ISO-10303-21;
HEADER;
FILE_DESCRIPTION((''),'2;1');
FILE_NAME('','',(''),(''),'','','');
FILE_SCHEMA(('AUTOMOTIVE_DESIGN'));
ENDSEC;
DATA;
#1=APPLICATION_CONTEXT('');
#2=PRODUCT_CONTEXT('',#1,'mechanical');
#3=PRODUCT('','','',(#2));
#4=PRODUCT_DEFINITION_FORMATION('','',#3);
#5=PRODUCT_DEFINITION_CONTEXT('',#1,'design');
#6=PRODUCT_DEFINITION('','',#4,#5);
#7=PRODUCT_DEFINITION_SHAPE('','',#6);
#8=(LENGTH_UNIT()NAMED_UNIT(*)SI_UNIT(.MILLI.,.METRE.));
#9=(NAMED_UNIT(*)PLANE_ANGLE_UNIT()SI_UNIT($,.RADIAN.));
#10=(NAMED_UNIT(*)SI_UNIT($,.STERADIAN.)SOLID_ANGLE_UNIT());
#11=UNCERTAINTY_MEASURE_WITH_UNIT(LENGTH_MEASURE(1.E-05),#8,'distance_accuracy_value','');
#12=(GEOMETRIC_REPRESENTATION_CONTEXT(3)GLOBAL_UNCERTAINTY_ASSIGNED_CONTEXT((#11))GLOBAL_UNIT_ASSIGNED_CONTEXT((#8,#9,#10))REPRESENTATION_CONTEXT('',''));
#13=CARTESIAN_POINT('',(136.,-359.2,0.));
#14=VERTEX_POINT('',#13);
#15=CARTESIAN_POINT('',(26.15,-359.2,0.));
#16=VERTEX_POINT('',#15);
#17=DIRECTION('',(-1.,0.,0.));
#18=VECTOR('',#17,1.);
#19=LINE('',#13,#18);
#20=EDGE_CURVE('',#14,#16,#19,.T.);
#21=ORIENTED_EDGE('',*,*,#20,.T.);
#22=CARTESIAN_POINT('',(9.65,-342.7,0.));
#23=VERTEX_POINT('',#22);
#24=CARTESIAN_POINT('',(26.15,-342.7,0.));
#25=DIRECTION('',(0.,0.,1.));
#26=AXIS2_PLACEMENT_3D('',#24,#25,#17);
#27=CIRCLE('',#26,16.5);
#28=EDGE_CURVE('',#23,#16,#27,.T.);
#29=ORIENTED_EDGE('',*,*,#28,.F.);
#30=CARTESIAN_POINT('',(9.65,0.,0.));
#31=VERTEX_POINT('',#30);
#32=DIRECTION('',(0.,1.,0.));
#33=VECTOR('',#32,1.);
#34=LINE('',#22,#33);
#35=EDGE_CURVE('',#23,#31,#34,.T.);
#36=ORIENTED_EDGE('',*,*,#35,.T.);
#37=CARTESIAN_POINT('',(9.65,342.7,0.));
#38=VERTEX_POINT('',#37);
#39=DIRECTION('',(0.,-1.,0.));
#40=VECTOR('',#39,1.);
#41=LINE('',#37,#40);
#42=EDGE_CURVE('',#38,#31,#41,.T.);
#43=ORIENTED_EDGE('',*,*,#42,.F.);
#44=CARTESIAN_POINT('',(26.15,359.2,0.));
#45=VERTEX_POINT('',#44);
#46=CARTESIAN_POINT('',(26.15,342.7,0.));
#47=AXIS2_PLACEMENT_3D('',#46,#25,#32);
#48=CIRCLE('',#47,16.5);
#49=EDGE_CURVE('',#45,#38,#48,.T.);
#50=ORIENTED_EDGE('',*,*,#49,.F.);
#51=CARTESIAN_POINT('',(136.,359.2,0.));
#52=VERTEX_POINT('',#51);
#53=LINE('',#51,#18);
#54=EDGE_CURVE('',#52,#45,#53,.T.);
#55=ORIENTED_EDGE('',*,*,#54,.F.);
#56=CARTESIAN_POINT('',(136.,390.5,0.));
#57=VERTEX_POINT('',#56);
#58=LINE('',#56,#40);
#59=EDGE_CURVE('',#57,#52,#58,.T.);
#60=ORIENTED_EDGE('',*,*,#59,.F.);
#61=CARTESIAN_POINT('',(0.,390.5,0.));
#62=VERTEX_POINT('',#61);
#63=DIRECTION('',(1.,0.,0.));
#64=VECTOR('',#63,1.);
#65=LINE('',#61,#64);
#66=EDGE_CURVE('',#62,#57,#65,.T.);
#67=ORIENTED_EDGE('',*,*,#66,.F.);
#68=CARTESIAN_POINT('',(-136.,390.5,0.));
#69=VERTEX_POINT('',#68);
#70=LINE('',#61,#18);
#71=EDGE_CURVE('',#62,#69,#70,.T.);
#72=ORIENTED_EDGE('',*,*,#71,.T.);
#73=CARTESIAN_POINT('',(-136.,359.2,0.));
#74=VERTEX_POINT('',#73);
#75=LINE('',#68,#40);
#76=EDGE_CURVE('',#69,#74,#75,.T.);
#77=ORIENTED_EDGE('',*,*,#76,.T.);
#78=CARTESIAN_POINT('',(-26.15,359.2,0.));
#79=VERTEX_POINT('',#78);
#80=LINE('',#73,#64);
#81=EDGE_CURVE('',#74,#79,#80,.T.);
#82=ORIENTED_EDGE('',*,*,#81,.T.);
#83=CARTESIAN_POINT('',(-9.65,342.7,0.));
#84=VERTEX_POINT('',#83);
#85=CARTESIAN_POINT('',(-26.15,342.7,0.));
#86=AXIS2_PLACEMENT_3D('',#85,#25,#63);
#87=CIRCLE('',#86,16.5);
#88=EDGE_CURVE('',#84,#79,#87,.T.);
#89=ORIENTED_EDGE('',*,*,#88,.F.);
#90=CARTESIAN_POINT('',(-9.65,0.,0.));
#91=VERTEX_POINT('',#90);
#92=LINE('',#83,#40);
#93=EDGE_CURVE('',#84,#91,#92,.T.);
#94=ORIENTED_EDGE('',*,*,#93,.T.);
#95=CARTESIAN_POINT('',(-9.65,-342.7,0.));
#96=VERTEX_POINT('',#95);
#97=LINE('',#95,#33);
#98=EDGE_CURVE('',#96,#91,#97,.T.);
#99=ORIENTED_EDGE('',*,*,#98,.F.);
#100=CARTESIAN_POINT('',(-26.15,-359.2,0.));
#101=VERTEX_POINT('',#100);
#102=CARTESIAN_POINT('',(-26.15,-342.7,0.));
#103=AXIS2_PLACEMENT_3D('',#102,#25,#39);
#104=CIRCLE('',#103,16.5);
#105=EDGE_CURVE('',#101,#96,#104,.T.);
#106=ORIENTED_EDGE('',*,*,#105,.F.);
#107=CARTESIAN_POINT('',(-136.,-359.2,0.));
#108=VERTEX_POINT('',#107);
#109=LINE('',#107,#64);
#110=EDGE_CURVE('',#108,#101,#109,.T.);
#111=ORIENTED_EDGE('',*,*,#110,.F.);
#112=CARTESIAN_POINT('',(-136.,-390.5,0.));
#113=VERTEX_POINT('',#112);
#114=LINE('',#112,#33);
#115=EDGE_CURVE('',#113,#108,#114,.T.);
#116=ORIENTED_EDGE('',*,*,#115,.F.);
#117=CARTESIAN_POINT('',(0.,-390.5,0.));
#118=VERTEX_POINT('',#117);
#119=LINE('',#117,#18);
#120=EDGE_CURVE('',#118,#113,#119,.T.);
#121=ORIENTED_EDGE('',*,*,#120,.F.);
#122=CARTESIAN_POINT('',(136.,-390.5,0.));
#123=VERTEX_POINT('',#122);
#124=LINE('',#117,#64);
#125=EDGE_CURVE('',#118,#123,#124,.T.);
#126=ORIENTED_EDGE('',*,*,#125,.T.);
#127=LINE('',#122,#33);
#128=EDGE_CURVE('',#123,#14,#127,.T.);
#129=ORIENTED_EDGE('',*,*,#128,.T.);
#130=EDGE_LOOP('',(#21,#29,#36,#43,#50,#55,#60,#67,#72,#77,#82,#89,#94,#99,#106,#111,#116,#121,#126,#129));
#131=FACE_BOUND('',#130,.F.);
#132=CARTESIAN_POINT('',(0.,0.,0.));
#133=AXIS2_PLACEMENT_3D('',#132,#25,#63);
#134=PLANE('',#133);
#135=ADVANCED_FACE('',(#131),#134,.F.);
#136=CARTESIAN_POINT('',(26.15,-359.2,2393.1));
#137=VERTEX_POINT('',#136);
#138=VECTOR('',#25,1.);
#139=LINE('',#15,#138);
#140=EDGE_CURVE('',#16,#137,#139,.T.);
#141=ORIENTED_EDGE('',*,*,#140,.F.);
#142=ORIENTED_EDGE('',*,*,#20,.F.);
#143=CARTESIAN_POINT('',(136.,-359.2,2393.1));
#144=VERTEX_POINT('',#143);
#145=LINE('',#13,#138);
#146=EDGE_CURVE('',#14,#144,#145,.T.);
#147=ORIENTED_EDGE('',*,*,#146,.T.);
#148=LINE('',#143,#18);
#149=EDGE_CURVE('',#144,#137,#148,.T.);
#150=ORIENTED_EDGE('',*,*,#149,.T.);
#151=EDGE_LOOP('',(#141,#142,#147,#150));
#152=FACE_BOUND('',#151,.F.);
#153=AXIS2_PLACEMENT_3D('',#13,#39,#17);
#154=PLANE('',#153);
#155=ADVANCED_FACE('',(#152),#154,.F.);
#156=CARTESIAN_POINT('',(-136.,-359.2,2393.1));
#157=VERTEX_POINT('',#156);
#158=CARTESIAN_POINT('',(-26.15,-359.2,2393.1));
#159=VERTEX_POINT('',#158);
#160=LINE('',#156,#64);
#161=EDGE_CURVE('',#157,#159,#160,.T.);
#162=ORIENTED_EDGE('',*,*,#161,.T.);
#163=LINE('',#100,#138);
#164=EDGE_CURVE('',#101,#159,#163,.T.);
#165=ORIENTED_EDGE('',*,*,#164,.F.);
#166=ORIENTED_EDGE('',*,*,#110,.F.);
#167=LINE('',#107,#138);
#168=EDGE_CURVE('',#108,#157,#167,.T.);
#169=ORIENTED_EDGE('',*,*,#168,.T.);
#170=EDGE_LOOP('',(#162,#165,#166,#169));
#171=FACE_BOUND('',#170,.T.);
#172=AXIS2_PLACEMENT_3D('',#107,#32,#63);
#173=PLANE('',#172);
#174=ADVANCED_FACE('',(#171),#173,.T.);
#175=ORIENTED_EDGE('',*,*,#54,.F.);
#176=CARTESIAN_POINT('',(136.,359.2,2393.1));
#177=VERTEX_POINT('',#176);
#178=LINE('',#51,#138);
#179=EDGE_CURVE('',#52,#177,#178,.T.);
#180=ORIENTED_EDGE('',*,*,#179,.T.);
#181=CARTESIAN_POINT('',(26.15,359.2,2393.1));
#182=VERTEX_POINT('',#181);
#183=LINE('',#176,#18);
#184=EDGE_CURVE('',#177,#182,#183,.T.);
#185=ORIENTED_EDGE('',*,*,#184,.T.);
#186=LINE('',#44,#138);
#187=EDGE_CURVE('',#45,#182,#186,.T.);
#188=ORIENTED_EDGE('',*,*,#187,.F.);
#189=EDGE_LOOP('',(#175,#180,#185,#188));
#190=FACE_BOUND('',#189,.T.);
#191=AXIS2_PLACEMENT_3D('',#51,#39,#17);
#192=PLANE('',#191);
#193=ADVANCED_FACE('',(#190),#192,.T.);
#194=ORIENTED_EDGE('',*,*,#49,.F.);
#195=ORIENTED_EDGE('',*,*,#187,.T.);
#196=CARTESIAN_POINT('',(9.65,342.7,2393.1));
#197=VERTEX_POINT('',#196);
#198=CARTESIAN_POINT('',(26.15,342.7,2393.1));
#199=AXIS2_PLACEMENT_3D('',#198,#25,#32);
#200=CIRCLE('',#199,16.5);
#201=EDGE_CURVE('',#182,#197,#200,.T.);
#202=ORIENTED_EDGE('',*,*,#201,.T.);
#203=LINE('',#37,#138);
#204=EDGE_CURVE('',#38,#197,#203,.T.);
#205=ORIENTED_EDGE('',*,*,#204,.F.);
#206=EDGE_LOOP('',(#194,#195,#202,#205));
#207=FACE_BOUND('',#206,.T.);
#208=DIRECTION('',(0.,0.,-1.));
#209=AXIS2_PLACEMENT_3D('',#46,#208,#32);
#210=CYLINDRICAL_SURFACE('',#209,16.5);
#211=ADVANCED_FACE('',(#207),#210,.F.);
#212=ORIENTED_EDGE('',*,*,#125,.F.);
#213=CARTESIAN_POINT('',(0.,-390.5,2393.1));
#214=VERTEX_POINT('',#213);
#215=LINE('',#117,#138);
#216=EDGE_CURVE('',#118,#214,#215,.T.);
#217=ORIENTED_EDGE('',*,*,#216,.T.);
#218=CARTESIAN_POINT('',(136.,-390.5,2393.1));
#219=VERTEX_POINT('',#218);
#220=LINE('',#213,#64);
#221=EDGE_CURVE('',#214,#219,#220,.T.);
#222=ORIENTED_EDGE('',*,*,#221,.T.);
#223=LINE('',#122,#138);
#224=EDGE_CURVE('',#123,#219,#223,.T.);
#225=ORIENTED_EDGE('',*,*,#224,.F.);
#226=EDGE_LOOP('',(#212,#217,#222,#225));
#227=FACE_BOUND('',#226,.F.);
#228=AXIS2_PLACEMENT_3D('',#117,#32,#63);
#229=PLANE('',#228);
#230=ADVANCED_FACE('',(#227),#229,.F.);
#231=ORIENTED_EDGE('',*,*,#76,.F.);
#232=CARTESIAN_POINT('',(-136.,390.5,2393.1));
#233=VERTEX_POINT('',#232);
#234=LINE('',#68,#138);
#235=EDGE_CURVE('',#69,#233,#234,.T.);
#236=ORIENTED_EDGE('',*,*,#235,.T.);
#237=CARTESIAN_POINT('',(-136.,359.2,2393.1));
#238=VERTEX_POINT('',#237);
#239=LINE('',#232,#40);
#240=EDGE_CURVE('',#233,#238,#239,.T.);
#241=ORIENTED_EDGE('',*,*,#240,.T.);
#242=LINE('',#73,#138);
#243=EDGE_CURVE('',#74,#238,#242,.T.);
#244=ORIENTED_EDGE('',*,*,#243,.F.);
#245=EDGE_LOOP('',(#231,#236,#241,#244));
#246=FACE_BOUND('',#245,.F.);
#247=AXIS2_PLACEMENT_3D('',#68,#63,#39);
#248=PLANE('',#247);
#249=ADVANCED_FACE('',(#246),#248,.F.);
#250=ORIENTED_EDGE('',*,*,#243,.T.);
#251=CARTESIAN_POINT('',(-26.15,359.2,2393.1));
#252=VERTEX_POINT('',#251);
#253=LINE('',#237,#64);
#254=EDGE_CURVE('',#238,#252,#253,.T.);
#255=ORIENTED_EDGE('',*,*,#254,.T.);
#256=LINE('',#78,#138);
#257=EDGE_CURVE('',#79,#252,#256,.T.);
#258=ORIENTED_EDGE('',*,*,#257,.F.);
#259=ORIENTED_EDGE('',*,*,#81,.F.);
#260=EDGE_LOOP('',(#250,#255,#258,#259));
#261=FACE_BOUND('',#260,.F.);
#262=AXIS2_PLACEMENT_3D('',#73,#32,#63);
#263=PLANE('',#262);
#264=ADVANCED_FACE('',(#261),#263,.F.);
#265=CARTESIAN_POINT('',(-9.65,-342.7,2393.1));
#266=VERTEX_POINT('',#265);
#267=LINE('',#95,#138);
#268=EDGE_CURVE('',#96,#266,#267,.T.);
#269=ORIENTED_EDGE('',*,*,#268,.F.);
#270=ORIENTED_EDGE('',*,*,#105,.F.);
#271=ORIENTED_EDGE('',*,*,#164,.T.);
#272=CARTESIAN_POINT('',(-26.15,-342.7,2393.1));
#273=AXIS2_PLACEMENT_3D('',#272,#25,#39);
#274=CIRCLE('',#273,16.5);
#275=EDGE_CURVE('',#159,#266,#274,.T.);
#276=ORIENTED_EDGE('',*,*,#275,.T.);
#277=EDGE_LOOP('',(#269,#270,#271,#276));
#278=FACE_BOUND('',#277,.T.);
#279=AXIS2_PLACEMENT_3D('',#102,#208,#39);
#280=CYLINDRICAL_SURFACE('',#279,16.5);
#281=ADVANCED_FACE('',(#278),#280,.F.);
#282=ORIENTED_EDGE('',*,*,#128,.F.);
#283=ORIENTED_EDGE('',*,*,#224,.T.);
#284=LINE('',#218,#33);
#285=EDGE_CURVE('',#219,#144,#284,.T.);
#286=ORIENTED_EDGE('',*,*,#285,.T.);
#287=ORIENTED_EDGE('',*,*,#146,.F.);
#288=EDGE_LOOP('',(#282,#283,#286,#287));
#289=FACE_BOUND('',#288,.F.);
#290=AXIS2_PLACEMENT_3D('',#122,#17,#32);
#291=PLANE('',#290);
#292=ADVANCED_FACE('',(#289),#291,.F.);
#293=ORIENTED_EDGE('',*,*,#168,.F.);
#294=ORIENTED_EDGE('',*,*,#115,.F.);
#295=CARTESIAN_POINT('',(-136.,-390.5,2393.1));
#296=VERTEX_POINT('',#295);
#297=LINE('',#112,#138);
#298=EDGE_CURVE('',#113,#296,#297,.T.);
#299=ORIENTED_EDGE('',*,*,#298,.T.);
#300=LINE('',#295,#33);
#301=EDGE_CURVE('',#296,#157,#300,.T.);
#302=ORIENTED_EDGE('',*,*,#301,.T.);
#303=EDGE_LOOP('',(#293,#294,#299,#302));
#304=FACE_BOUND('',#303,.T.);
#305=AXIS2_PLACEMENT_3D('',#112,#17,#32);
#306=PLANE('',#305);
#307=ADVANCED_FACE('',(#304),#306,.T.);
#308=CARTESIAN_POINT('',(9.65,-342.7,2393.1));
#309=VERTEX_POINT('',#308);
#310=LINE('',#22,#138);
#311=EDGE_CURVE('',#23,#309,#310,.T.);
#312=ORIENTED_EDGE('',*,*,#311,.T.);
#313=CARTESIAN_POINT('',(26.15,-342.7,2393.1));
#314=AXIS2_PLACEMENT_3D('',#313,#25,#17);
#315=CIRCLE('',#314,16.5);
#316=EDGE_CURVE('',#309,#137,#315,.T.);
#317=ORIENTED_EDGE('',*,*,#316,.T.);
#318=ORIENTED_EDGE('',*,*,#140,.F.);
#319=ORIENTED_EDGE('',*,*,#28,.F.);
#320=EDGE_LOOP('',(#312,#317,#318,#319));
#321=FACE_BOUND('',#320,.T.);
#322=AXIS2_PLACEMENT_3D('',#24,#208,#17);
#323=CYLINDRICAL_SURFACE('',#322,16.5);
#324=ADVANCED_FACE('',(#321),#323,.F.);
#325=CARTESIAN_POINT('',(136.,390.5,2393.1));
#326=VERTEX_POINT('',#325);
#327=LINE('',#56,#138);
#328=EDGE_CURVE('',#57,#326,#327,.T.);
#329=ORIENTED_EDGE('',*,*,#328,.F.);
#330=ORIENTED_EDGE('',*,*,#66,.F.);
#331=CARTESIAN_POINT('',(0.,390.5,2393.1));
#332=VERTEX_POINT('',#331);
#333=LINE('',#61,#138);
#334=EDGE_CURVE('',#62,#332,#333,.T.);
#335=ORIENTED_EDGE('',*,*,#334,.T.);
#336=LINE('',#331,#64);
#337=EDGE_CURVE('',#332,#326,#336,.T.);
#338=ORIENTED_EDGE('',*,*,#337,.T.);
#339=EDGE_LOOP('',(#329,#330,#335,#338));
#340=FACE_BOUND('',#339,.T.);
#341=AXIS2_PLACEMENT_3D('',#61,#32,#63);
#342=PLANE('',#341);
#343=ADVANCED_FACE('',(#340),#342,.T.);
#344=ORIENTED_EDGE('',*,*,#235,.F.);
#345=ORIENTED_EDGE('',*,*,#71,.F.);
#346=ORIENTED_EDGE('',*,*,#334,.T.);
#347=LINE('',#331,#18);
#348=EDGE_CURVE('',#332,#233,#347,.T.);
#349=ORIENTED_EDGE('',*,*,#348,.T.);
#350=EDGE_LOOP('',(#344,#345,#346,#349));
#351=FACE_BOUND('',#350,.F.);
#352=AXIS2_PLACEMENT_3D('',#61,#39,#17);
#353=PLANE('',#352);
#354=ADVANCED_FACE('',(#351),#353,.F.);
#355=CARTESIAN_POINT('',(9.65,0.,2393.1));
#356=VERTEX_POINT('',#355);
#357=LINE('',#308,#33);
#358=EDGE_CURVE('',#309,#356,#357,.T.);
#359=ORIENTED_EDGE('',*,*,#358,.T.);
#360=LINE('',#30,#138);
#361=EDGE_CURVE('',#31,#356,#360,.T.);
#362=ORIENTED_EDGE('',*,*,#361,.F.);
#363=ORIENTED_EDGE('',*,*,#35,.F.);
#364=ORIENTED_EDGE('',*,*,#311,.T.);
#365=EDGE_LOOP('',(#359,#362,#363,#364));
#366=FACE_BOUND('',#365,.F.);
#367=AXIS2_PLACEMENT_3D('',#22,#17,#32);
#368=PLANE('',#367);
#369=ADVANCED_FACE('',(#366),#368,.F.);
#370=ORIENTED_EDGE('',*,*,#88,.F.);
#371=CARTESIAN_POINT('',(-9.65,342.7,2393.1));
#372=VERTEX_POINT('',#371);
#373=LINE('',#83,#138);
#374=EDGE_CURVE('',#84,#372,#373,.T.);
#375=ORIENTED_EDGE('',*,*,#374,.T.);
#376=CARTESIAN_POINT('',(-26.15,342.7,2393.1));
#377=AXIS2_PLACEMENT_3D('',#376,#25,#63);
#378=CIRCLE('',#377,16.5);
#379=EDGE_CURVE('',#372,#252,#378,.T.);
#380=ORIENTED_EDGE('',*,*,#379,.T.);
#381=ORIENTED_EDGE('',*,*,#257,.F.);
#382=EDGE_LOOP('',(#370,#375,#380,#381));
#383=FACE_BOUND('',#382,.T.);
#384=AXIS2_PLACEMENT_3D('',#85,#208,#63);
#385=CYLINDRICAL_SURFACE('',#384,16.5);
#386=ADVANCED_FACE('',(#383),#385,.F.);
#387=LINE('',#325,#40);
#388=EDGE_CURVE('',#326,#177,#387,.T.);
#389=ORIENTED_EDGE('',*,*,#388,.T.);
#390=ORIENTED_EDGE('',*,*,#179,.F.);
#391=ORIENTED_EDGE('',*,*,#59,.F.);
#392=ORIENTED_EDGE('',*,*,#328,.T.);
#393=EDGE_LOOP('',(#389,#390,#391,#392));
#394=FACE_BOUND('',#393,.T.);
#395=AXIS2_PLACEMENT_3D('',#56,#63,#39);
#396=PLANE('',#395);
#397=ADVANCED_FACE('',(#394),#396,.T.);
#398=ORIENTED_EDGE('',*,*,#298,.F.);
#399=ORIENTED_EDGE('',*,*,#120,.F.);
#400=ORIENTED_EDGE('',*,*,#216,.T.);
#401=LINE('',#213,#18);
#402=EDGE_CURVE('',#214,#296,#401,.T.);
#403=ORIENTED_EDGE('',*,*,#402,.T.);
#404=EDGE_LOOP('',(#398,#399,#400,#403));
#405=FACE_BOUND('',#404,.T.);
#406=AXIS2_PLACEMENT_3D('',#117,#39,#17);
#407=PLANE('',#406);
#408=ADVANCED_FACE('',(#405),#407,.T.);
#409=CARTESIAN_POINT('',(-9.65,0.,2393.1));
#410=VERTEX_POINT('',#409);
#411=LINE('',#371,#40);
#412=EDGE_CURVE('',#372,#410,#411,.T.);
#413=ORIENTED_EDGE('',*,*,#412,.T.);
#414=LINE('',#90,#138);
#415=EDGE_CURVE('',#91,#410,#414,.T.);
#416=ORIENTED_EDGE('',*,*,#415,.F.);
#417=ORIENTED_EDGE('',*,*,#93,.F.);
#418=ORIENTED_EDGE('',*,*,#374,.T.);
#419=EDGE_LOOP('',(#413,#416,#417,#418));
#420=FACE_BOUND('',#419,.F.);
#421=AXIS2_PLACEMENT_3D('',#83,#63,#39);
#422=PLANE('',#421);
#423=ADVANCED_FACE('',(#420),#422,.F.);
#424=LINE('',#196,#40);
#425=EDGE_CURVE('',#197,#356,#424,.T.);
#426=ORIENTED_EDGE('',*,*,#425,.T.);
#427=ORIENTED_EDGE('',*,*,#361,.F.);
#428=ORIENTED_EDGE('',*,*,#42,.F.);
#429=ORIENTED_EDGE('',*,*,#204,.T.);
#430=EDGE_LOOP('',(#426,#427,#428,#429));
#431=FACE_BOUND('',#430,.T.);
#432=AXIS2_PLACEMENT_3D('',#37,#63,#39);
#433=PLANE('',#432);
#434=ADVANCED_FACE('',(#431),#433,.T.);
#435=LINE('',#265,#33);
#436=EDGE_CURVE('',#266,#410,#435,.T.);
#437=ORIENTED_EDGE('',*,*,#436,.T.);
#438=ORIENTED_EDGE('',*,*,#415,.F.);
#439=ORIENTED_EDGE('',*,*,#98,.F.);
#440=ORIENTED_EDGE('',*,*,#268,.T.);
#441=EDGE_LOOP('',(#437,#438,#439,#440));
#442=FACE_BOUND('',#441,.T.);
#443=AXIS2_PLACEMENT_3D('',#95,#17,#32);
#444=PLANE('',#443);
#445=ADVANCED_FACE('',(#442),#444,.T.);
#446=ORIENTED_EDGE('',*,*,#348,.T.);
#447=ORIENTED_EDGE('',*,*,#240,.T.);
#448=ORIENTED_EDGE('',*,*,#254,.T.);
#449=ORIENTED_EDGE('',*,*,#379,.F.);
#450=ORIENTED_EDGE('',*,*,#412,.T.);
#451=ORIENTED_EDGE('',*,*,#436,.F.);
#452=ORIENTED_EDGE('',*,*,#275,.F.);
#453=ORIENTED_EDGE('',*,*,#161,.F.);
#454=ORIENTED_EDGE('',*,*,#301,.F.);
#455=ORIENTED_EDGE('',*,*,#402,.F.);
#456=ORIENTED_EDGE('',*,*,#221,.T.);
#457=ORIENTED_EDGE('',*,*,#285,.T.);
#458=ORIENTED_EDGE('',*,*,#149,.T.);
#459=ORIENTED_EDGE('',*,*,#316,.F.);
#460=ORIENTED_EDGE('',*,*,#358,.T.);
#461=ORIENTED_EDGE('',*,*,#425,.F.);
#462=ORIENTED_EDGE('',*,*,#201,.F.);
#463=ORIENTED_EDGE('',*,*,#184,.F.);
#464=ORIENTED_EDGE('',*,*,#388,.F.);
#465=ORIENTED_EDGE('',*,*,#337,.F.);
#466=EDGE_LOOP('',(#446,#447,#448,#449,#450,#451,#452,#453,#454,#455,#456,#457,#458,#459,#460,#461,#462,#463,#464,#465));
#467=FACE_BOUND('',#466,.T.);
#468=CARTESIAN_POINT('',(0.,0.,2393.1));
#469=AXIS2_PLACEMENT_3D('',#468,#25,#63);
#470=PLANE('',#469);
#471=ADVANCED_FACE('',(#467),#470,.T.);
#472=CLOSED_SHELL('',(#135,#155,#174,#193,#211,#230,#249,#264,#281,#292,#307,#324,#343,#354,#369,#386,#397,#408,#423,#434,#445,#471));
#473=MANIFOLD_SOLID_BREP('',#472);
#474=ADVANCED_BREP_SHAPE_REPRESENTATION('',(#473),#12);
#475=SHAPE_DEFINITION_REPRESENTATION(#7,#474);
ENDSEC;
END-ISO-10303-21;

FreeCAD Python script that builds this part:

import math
import FreeCAD as App
import Part
import Sketcher
from FreeCAD import Vector
Q = App.Units.Quantity

doc = App.newDocument("Part")
body = doc.addObject("PartDesign::Body", "Body")

# Sketch on XY plane
sketch1 = body.newObject("Sketcher::SketchObject", "Sketch")
sketch1.AttachmentSupport = (doc.getObject("XY_Plane"), [""])
sketch1.MapMode = "FlatFace"
sketch1.addGeometry([
    Part.LineSegment(Vector(-136, -359.2, 0), Vector(-136, -390.5, 0)),  # 0
    Part.LineSegment(Vector(-136, -390.5, 0), Vector(136, -390.5, 0)),  # 1
    Part.LineSegment(Vector(136, -390.5, 0), Vector(136, -359.2, 0)),  # 2
    Part.LineSegment(Vector(136, -359.2, 0), Vector(26.15, -359.2, 0)),  # 3
    Part.ArcOfCircle(Part.Circle(Vector(26.15, -342.7, 0), Vector(0, 0, 1), 16.5), math.radians(180), math.radians(270)),  # 4
    Part.LineSegment(Vector(9.65, -342.7, 0), Vector(9.65, 342.7, 0)),  # 5
    Part.ArcOfCircle(Part.Circle(Vector(26.15, 342.7, 0), Vector(0, 0, 1), 16.5), math.radians(90), math.radians(180)),  # 6
    Part.LineSegment(Vector(26.15, 359.2, 0), Vector(136, 359.2, 0)),  # 7
    Part.LineSegment(Vector(136, 359.2, 0), Vector(136, 390.5, 0)),  # 8
    Part.LineSegment(Vector(136, 390.5, 0), Vector(-136, 390.5, 0)),  # 9
    Part.LineSegment(Vector(-136, 390.5, 0), Vector(-136, 359.2, 0)),  # 10
    Part.LineSegment(Vector(-136, 359.2, 0), Vector(-26.15, 359.2, 0)),  # 11
    Part.ArcOfCircle(Part.Circle(Vector(-26.15, 342.7, 0), Vector(0, 0, 1), 16.5), math.radians(0), math.radians(90)),  # 12
    Part.LineSegment(Vector(-9.65, 342.7, 0), Vector(-9.65, -342.7, 0)),  # 13
    Part.ArcOfCircle(Part.Circle(Vector(-26.15, -342.7, 0), Vector(0, 0, 1), 16.5), math.radians(-90), math.radians(0)),  # 14
    Part.LineSegment(Vector(-26.15, -359.2, 0), Vector(-136, -359.2, 0)),  # 15
], False)
sketch1.addConstraint([
    Sketcher.Constraint("Coincident", 0, 2, 1, 1),
    Sketcher.Constraint("Coincident", 1, 2, 2, 1),
    Sketcher.Constraint("Coincident", 2, 2, 3, 1),
    Sketcher.Constraint("Tangent", 3, 2, 4, 2),
    Sketcher.Constraint("Tangent", 4, 1, 5, 1),
    Sketcher.Constraint("Tangent", 5, 2, 6, 2),
    Sketcher.Constraint("Tangent", 6, 1, 7, 1),
    Sketcher.Constraint("Coincident", 7, 2, 8, 1),
    Sketcher.Constraint("Coincident", 8, 2, 9, 1),
    Sketcher.Constraint("Coincident", 9, 2, 10, 1),
    Sketcher.Constraint("Coincident", 10, 2, 11, 1),
    Sketcher.Constraint("Tangent", 11, 2, 12, 2),
    Sketcher.Constraint("Tangent", 12, 1, 13, 1),
    Sketcher.Constraint("Tangent", 13, 2, 14, 2),
    Sketcher.Constraint("Tangent", 14, 1, 15, 1),
    Sketcher.Constraint("Coincident", 15, 2, 0, 1),
    Sketcher.Constraint("Vertical", 0),
    Sketcher.Constraint("Horizontal", 1),
    Sketcher.Constraint("Vertical", 2),
    Sketcher.Constraint("Horizontal", 3),
    Sketcher.Constraint("Vertical", 5),
    Sketcher.Constraint("Horizontal", 7),
    Sketcher.Constraint("Vertical", 8),
    Sketcher.Constraint("Horizontal", 9),
    Sketcher.Constraint("Vertical", 10),
    Sketcher.Constraint("Horizontal", 11),
    Sketcher.Constraint("Vertical", 13),
    Sketcher.Constraint("Horizontal", 15),
    Sketcher.Constraint("Equal", 4, 6),
    Sketcher.Constraint("Equal", 6, 12),
    Sketcher.Constraint("Equal", 12, 14),
    Sketcher.Constraint("Symmetric", 4, 3, 12, 3, -1, 1),
    Sketcher.Constraint("Symmetric", 0, 2, 8, 2, -1, 1),
    Sketcher.Constraint("Symmetric", 7, 2, 10, 2, -2),
    Sketcher.Constraint("Symmetric", 2, 2, 15, 2, -2),
    Sketcher.Constraint("Radius", 4, Q("16.5 mm")),
    Sketcher.Constraint("DistanceY", 0, 2, 0, 1, Q("31.3 mm")),
    Sketcher.Constraint("DistanceX", 0, 2, -1, 1, Q("136 mm")),
    Sketcher.Constraint("DistanceY", 0, 2, -1, 1, Q("390.5 mm")),
    Sketcher.Constraint("DistanceX", -1, 1, 4, 1, Q("9.65 mm")),
])
pad1 = body.newObject("PartDesign::Pad", "Pad")
pad1.Profile = sketch1
pad1.Length = 2393.1

doc.recompute()
